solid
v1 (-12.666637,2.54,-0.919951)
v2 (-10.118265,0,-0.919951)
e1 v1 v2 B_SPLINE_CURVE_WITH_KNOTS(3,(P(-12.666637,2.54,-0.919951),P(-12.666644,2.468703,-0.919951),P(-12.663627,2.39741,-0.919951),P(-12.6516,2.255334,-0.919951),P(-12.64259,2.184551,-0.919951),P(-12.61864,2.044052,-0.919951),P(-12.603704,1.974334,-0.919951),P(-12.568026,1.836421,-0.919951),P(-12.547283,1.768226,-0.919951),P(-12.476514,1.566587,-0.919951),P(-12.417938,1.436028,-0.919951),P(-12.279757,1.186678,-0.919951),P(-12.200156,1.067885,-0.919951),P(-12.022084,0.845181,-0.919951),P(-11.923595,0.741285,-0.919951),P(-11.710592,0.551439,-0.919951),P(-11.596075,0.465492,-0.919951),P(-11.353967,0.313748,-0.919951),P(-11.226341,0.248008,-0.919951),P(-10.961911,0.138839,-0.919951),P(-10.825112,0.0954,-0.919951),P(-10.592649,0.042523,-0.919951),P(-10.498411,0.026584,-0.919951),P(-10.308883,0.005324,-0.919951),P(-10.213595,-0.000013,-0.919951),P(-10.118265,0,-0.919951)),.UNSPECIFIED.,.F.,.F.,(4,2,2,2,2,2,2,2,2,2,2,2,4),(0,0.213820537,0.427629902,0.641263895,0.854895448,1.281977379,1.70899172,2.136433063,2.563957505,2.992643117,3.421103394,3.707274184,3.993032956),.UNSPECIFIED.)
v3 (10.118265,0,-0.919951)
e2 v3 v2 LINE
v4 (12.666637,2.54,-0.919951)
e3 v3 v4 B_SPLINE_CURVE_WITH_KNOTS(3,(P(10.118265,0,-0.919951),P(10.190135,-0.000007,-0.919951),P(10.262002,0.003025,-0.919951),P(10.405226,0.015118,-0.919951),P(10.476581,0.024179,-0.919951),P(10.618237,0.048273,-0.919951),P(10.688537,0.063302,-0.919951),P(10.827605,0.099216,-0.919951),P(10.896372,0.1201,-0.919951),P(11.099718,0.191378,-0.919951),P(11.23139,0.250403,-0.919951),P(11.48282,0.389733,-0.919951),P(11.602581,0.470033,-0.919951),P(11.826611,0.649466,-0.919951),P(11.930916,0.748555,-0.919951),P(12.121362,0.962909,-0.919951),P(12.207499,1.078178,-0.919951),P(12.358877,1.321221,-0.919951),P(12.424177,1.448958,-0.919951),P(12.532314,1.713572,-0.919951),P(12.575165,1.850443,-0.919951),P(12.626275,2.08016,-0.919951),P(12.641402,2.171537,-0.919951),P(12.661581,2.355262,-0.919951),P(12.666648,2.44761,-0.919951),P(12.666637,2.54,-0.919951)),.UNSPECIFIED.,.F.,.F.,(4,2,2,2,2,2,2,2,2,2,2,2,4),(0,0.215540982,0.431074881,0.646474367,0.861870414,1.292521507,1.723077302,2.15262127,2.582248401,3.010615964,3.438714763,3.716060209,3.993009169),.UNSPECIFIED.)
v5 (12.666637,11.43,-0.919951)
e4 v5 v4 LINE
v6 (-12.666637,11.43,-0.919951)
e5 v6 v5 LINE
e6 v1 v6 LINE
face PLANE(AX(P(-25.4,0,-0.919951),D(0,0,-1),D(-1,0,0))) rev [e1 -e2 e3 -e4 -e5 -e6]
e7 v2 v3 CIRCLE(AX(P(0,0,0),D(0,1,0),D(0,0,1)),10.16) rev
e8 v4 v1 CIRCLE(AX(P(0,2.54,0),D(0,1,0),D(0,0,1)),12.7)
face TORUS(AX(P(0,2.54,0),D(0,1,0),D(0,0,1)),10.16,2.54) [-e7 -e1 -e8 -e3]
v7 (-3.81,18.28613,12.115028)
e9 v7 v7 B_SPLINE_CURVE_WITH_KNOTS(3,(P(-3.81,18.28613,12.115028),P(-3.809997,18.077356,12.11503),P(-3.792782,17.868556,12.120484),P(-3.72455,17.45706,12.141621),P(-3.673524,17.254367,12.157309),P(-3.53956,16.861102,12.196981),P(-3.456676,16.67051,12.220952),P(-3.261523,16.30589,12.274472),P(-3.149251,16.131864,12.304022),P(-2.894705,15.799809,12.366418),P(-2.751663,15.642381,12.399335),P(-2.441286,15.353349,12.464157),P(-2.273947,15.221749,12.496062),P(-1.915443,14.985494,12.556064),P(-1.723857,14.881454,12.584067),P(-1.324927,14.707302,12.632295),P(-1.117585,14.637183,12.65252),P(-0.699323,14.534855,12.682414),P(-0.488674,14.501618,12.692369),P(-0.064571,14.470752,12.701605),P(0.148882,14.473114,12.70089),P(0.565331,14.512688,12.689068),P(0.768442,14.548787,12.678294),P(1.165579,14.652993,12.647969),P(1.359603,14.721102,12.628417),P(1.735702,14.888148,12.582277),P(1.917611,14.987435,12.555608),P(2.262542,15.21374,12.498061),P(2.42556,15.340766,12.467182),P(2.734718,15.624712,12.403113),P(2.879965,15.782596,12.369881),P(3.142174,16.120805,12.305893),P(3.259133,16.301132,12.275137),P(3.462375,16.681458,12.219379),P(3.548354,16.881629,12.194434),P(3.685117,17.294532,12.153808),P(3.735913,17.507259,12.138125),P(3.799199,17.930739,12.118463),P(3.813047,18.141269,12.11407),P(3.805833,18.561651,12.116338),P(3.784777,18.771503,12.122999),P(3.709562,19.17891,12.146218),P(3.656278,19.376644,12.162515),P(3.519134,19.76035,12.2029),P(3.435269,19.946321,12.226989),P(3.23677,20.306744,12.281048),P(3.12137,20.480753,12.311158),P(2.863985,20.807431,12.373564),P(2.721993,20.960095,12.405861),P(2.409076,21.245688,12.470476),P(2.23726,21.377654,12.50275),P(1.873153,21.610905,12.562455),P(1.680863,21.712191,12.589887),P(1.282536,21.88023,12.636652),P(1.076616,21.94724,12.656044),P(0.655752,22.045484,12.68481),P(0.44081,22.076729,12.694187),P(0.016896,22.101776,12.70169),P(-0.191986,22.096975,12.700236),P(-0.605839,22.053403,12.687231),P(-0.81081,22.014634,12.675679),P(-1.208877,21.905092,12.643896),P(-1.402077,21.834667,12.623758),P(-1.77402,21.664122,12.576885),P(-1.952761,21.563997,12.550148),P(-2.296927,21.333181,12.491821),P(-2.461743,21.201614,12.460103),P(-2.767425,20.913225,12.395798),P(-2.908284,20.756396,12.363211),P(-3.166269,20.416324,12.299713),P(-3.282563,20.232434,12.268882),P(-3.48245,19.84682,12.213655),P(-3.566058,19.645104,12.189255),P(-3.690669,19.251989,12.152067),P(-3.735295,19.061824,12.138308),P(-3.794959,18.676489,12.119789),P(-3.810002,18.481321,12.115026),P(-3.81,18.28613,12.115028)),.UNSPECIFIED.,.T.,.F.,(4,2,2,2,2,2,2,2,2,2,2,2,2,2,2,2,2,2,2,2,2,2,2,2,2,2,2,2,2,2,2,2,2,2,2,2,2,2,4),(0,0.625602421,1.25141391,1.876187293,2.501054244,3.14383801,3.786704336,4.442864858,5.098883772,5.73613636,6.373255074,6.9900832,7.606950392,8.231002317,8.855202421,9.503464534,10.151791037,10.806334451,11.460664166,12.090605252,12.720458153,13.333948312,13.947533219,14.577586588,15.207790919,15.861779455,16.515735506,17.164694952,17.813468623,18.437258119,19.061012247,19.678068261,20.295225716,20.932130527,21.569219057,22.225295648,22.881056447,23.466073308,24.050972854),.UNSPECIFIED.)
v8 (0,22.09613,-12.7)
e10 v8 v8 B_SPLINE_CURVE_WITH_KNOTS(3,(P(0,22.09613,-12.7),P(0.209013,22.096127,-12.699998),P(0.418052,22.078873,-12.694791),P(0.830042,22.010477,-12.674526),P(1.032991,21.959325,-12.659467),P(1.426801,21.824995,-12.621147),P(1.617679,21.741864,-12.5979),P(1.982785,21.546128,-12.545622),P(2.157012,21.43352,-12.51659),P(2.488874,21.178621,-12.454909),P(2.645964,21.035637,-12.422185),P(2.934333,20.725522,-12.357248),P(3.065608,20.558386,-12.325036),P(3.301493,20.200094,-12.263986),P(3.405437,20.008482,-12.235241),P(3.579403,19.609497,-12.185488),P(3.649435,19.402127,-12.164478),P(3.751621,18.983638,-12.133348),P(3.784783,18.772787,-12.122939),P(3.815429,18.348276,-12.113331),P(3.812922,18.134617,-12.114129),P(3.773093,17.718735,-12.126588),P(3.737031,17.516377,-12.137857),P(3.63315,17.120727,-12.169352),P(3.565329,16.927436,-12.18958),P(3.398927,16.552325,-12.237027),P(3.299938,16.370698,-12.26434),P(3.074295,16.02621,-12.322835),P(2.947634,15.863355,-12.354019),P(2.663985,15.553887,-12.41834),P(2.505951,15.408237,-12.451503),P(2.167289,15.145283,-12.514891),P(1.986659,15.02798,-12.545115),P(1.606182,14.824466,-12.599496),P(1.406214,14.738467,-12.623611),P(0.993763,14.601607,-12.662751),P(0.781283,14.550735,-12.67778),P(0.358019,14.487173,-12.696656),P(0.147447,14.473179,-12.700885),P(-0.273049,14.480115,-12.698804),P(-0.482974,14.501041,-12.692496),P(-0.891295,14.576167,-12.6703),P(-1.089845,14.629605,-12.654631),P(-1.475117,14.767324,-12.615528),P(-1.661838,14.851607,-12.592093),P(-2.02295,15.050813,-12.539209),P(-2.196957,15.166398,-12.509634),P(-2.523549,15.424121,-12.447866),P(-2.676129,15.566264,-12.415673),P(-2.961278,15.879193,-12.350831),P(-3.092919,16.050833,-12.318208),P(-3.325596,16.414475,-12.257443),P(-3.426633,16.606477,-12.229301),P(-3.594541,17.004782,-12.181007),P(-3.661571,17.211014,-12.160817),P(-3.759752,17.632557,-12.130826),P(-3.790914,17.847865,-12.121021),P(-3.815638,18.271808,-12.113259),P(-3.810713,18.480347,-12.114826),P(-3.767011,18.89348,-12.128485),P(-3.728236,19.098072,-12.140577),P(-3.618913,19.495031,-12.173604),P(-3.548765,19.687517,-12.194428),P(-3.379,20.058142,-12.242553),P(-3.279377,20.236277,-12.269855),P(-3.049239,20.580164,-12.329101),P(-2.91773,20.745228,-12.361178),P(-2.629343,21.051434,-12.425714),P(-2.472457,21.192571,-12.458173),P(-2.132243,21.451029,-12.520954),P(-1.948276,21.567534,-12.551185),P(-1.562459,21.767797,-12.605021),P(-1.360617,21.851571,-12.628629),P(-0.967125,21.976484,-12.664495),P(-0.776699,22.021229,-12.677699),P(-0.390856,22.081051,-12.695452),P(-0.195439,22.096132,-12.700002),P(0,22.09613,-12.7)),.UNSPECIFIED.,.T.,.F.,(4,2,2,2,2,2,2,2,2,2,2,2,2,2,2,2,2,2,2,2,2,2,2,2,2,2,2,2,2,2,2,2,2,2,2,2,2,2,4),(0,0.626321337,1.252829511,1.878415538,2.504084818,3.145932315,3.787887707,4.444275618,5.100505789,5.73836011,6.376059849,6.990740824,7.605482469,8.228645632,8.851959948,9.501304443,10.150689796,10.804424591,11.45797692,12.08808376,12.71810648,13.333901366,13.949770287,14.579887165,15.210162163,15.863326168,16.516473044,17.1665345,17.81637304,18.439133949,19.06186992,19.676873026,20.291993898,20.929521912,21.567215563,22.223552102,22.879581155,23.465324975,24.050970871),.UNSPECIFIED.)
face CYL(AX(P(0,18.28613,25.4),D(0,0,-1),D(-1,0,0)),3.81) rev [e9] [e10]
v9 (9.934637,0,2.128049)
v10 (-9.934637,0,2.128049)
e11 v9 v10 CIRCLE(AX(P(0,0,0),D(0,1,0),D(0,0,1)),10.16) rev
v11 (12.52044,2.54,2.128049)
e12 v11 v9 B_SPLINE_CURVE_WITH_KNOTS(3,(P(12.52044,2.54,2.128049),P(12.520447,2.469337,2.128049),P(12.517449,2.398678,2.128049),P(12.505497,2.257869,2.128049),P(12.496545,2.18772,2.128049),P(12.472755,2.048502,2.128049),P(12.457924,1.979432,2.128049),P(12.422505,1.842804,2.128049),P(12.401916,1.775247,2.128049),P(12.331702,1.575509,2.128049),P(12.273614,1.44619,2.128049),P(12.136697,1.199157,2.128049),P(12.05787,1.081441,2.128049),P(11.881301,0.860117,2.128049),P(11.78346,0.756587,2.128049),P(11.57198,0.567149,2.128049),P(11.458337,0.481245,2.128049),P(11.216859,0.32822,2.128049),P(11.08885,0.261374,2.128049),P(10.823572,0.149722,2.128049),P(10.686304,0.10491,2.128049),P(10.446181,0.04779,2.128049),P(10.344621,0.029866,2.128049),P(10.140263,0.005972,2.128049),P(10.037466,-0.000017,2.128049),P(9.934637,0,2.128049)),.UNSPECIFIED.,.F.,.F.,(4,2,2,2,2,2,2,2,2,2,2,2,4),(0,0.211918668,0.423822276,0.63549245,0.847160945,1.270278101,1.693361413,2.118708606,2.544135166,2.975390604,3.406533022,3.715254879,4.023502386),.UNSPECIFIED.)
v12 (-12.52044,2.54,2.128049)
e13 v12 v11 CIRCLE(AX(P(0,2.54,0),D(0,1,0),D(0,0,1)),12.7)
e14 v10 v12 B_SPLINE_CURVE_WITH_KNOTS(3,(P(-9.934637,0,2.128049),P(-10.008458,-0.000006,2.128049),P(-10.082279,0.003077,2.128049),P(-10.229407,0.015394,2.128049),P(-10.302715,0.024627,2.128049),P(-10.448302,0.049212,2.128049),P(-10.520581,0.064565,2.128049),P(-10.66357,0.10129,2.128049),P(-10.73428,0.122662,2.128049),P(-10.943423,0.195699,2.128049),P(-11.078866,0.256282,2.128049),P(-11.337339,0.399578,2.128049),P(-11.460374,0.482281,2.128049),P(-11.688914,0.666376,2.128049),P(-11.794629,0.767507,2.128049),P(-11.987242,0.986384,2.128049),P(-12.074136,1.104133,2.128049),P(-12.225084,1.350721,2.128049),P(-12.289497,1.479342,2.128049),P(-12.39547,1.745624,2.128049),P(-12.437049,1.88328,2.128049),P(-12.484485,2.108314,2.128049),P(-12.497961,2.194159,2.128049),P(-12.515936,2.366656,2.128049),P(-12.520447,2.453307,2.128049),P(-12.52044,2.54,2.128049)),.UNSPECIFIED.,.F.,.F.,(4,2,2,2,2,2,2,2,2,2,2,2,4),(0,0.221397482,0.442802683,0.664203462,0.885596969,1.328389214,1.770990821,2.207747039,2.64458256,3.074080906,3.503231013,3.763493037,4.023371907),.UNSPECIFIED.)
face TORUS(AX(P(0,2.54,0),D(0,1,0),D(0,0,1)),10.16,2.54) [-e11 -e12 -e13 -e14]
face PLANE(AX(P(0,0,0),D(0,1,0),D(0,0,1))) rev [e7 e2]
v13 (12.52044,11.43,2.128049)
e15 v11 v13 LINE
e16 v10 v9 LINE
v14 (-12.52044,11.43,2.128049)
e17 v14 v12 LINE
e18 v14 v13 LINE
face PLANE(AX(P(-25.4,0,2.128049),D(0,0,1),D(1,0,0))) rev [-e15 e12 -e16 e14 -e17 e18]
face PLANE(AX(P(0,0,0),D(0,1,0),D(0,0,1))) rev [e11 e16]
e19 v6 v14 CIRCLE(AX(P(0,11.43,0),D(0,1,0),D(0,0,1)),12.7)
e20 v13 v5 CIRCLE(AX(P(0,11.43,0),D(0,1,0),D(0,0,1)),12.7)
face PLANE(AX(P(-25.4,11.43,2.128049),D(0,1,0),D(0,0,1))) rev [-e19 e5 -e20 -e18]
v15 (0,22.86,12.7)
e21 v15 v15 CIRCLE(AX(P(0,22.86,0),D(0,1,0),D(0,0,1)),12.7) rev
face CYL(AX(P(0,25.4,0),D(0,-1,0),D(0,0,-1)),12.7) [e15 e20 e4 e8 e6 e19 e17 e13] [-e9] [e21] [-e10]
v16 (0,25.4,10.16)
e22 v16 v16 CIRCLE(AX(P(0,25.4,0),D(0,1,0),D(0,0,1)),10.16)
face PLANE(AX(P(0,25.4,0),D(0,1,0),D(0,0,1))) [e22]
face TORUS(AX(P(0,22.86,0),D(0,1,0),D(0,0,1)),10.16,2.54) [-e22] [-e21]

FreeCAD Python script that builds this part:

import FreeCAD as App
import Part
import Sketcher
Q = App.Units.Quantity


def edges_at(feature, points):
    """Names of the edges that pass closest to the given points."""
    edges = feature.Shape.Edges
    near = lambda p: min(range(len(edges)), key=lambda i: edges[i].distToShape(Part.Vertex(*p))[0])
    return sorted({f"Edge{near(p) + 1}" for p in points})

doc = App.newDocument("Part")
body = doc.addObject("PartDesign::Body", "Body")

# Sketch on XZ plane
sketch1 = body.newObject("Sketcher::SketchObject", "Sketch")
sketch1.AttachmentSupport = (doc.getObject("XZ_Plane"), [""])
sketch1.MapMode = "FlatFace"
sketch1.addGeometry(Part.Circle(App.Vector(0, 0, 0), App.Vector(0, 0, 1), 12.7), False)
sketch1.addConstraint(Sketcher.Constraint("Coincident", 0, 3, -1, 1))
sketch1.addConstraint(Sketcher.Constraint("Diameter", 0, Q("1 in")))
pad1 = body.newObject("PartDesign::Pad", "Pad")
pad1.Profile = sketch1
pad1.Length = Q("1 in")
pad1.Reversed = True

# Sketch on XY plane
sketch2 = body.newObject("Sketcher::SketchObject", "Sketch001")
sketch2.AttachmentSupport = (doc.getObject("XY_Plane"), [""])
sketch2.MapMode = "FlatFace"
sketch2.addGeometry(Part.Circle(App.Vector(0, 18.28613, 0), App.Vector(0, 0, 1), 3.81), False)
sketch2.addConstraint(Sketcher.Constraint("PointOnObject", 0, 3, -2))
sketch2.addConstraint(Sketcher.Constraint("Diameter", 0, Q("0.3 in")))
sketch2.addConstraint(Sketcher.Constraint("DistanceY", -1, 1, 0, 3, Q("18.28613 mm")))
pocket1 = body.newObject("PartDesign::Pocket", "Pocket")
pocket1.Profile = sketch2
pocket1.Length = Q("2 in")
pocket1.Midplane = True

# Sketch on YZ plane
sketch3 = body.newObject("Sketcher::SketchObject", "Sketch002")
sketch3.AttachmentSupport = (doc.getObject("YZ_Plane"), [""])
sketch3.MapMode = "FlatFace"
sketch3.addGeometry(Part.LineSegment(App.Vector(11.43, 2.128049, 0), App.Vector(0, 2.128049, 0)), False)
sketch3.addGeometry(Part.LineSegment(App.Vector(0, 2.128049, 0), App.Vector(0, -0.919951, 0)), False)
sketch3.addGeometry(Part.LineSegment(App.Vector(0, -0.919951, 0), App.Vector(11.43, -0.919951, 0)), False)
sketch3.addGeometry(Part.LineSegment(App.Vector(11.43, -0.919951, 0), App.Vector(11.43, 2.128049, 0)), False)
sketch3.addConstraint(Sketcher.Constraint("Coincident", 0, 2, 1, 1))
sketch3.addConstraint(Sketcher.Constraint("Coincident", 1, 2, 2, 1))
sketch3.addConstraint(Sketcher.Constraint("Coincident", 2, 2, 3, 1))
sketch3.addConstraint(Sketcher.Constraint("Coincident", 3, 2, 0, 1))
sketch3.addConstraint(Sketcher.Constraint("Horizontal", 0))
sketch3.addConstraint(Sketcher.Constraint("Vertical", 1))
sketch3.addConstraint(Sketcher.Constraint("Horizontal", 2))
sketch3.addConstraint(Sketcher.Constraint("Vertical", 3))
sketch3.addConstraint(Sketcher.Constraint("PointOnObject", 0, 2, -2))
sketch3.addConstraint(Sketcher.Constraint("DistanceX", 0, 2, 0, 1, Q("0.45 in")))
sketch3.addConstraint(Sketcher.Constraint("DistanceY", 1, 2, 1, 1, Q("0.12 in")))
sketch3.addConstraint(Sketcher.Constraint("DistanceY", -1, 1, 0, 2, Q("2.128049 mm")))
pocket2 = body.newObject("PartDesign::Pocket", "Pocket001")
pocket2.Profile = sketch3
pocket2.Length = Q("2 in")
pocket2.Midplane = True
doc.recompute()

fillet = body.newObject("PartDesign::Fillet", "Fillet")
fillet.Base = (pocket2, edges_at(pocket2, [(0, 0, -12.7), (8.193, 0, 9.704), (0, 25.4, -12.7)]))
fillet.Radius = Q("0.1 in")

doc.recompute()
